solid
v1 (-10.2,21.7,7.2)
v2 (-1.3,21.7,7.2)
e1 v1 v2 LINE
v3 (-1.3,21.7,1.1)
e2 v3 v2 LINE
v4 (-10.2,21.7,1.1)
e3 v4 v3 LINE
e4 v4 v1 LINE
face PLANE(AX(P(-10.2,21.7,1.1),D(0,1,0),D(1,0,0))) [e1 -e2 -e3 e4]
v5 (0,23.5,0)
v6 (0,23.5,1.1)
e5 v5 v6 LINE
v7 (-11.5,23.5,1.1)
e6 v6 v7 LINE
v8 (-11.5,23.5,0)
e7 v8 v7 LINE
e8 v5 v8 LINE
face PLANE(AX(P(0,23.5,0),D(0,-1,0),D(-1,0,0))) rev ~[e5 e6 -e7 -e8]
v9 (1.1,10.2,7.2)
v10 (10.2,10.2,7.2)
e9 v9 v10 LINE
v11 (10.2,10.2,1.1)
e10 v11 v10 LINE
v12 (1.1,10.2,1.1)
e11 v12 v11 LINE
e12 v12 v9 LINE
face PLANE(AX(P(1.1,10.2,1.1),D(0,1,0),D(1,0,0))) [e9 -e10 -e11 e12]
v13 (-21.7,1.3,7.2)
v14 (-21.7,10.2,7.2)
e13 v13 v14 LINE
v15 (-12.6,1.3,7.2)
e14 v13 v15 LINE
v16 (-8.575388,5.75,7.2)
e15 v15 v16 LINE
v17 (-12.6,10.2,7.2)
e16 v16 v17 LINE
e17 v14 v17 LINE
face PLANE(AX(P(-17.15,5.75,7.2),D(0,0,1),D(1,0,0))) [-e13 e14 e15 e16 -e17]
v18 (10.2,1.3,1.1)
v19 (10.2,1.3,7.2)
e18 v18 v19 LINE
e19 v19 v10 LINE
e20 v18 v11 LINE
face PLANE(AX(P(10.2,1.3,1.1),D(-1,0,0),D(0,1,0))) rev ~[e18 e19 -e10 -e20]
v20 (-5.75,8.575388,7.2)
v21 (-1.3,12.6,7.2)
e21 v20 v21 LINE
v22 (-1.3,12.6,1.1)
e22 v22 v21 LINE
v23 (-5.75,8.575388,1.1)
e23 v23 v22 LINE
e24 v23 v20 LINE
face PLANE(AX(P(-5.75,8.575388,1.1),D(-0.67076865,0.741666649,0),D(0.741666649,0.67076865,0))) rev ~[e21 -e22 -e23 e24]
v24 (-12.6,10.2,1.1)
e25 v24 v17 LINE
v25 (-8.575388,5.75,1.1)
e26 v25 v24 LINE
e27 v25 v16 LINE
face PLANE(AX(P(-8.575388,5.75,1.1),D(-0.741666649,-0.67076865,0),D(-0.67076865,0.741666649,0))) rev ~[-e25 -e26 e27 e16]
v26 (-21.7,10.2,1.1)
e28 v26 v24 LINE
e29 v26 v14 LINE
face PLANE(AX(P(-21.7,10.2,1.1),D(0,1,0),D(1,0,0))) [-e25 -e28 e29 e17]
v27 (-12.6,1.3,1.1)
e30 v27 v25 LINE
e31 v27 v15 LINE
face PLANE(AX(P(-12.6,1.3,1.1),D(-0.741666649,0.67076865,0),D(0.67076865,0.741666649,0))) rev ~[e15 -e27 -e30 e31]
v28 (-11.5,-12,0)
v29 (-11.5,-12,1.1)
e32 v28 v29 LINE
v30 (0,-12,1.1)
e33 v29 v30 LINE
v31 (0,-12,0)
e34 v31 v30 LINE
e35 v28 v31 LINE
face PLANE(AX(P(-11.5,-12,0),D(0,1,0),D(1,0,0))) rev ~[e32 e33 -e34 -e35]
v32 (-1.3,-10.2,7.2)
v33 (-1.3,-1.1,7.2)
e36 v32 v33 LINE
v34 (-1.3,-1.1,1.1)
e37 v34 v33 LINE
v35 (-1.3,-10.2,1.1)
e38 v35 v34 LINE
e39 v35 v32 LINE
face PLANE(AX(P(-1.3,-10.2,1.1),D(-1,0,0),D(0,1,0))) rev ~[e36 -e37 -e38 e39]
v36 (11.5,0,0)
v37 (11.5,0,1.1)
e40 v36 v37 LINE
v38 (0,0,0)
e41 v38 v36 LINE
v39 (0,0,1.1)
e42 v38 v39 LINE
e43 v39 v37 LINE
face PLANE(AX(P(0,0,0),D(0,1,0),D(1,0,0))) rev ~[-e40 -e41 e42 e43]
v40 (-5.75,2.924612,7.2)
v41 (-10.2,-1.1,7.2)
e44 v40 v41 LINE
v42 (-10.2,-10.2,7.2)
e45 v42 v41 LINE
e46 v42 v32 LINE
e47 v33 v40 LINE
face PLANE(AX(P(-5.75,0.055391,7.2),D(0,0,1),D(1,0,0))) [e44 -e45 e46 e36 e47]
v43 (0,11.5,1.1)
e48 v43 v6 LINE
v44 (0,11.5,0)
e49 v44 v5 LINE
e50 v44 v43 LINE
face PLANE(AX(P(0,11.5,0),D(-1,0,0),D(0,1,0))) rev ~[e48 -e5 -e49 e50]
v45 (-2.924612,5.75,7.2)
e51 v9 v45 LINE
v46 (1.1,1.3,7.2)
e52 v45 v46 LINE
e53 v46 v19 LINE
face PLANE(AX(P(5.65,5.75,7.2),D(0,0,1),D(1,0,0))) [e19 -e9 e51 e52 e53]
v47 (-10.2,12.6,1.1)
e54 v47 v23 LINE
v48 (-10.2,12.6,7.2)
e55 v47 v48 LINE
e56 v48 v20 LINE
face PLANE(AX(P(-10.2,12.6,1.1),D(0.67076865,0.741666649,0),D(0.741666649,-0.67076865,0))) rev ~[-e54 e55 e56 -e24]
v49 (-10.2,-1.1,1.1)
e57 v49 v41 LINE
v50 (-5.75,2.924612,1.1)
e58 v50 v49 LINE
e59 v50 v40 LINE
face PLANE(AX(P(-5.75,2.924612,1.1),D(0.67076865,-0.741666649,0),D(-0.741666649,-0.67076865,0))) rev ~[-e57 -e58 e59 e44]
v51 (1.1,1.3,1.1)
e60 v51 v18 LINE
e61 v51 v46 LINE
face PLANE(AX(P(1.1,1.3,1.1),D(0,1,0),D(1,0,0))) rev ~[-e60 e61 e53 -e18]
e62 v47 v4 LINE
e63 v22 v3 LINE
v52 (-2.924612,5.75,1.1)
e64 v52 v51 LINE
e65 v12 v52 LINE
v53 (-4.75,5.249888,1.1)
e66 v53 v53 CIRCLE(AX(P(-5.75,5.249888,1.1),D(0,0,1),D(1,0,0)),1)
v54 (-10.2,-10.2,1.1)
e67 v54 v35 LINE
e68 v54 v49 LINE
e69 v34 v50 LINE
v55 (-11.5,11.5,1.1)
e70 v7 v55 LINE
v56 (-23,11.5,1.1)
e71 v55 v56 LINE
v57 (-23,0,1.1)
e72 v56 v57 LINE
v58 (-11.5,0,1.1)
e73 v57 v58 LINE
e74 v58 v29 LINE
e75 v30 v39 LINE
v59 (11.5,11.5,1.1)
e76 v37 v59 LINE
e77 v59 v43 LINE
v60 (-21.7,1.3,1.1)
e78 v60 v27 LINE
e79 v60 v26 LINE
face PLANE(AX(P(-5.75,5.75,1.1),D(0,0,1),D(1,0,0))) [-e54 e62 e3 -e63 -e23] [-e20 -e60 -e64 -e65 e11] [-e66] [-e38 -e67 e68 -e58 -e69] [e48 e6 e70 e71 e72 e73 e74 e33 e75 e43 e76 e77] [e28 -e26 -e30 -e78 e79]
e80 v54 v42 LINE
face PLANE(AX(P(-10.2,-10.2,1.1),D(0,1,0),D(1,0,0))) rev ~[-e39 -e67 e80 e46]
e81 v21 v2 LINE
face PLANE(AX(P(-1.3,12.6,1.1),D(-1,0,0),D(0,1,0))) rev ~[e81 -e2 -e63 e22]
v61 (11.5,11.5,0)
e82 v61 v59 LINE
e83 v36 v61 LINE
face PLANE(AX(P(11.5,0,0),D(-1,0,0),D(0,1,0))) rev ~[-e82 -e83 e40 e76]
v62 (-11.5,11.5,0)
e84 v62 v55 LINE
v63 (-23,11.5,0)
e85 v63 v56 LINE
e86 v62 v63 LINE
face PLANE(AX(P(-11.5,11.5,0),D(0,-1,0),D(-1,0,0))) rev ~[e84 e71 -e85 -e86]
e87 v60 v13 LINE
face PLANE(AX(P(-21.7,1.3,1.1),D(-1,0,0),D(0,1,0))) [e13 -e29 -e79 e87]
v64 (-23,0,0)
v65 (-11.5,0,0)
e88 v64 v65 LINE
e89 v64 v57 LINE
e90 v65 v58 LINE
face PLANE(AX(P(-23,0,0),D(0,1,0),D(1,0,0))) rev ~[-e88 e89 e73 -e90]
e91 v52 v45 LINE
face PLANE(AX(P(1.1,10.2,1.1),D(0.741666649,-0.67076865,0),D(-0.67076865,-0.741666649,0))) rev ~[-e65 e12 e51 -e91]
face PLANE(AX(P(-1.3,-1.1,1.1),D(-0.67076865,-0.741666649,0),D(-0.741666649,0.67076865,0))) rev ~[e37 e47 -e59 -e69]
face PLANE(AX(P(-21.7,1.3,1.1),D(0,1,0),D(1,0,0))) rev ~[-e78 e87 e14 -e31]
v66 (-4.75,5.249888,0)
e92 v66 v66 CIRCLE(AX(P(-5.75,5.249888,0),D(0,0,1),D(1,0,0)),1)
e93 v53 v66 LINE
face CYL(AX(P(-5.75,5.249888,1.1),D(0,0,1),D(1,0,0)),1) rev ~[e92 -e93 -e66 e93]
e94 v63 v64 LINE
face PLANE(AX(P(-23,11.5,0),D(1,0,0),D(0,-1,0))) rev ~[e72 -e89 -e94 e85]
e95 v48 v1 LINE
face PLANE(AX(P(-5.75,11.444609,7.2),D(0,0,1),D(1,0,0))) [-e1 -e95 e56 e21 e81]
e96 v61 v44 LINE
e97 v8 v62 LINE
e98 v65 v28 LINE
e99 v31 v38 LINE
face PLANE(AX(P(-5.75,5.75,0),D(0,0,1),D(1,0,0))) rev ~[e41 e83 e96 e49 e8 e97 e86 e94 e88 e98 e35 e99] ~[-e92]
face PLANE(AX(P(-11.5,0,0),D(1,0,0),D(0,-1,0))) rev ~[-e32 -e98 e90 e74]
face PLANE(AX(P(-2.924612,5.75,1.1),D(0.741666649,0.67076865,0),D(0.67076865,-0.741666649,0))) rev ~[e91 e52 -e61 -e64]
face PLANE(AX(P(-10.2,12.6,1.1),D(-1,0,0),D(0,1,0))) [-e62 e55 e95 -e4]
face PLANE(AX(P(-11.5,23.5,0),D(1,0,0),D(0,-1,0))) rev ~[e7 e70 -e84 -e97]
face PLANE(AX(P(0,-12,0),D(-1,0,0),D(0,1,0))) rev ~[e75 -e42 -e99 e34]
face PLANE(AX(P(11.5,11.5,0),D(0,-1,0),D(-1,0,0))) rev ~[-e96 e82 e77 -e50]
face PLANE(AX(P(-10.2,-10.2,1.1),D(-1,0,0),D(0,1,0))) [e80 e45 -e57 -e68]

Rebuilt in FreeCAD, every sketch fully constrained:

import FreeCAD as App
import Part
import Sketcher
Q = App.Units.Quantity

doc = App.newDocument("Part")
body = doc.addObject("PartDesign::Body", "Body")

sketch1 = body.newObject("Sketcher::SketchObject", "Sketch")
sketch1.AttachmentSupport = (doc.getObject("XY_Plane"), [""])
sketch1.MapMode = "FlatFace"
sketch1.addGeometry([
    Part.LineSegment(App.Vector(-12, 12, 0), App.Vector(-23, 12, 0)),
    Part.LineSegment(App.Vector(-23, 12, 0), App.Vector(-23, 0, 0)),
    Part.LineSegment(App.Vector(-23, 0, 0), App.Vector(-12, 0, 0)),
    Part.LineSegment(App.Vector(-12, 0, 0), App.Vector(-12, -12, 0)),
    Part.LineSegment(App.Vector(-12, -12, 0), App.Vector(0, -12, 0)),
    Part.LineSegment(App.Vector(0, -12, 0), App.Vector(0, 0, 0)),
    Part.LineSegment(App.Vector(0, 0, 0), App.Vector(12, 0, 0)),
    Part.LineSegment(App.Vector(12, 0, 0), App.Vector(12, 12, 0)),
    Part.LineSegment(App.Vector(12, 12, 0), App.Vector(0, 12, 0)),
    Part.LineSegment(App.Vector(0, 12, 0), App.Vector(0, 24, 0)),
    Part.LineSegment(App.Vector(0, 24, 0), App.Vector(-12, 24, 0)),
    Part.LineSegment(App.Vector(-12, 24, 0), App.Vector(-12, 12, 0)),
], False)
sketch1.addConstraint([
    Sketcher.Constraint("Coincident", 0, 2, 1, 1),
    Sketcher.Constraint("Coincident", 1, 2, 2, 1),
    Sketcher.Constraint("Coincident", 2, 2, 3, 1),
    Sketcher.Constraint("Coincident", 3, 2, 4, 1),
    Sketcher.Constraint("Coincident", 4, 2, 5, 1),
    Sketcher.Constraint("Coincident", 5, 2, 6, 1),
    Sketcher.Constraint("Coincident", 6, 2, 7, 1),
    Sketcher.Constraint("Coincident", 7, 2, 8, 1),
    Sketcher.Constraint("Coincident", 8, 2, 9, 1),
    Sketcher.Constraint("Coincident", 9, 2, 10, 1),
    Sketcher.Constraint("Coincident", 10, 2, 11, 1),
    Sketcher.Constraint("Coincident", 11, 2, 0, 1),
    Sketcher.Constraint("Horizontal", 0),
    Sketcher.Constraint("Vertical", 1),
    Sketcher.Constraint("Horizontal", 2),
    Sketcher.Constraint("Vertical", 3),
    Sketcher.Constraint("Horizontal", 4),
    Sketcher.Constraint("Vertical", 5),
    Sketcher.Constraint("Horizontal", 6),
    Sketcher.Constraint("Vertical", 7),
    Sketcher.Constraint("Horizontal", 8),
    Sketcher.Constraint("Vertical", 9),
    Sketcher.Constraint("Horizontal", 10),
    Sketcher.Constraint("Vertical", 11),
    Sketcher.Constraint("Coincident", 5, 2, -1, 1),
    Sketcher.Constraint("Symmetric", 2, 2, 6, 2, -1, 1),
    Sketcher.Constraint("Symmetric", 7, 2, 11, 2, -2),
    Sketcher.Constraint("PointOnObject", 8, 2, -2),
    Sketcher.Constraint("Equal", 2, 4),
    Sketcher.Constraint("Equal", 10, 1),
    Sketcher.Constraint("Equal", 5, 9),
    Sketcher.Constraint("DistanceY", 3, 2, 3, 1, Q("12 mm")),
    Sketcher.Constraint("DistanceX", 0, 2, 0, 1, Q("11.5 mm")),
])
pad1 = body.newObject("PartDesign::Pad", "Pad")
pad1.Profile = sketch1
pad1.Length = 1.1

sketch2 = body.newObject("Sketcher::SketchObject", "Sketch001")
sketch2.AttachmentSupport = (doc.getObject("XY_Plane"), [""])
sketch2.MapMode = "FlatFace"
sketch2.AttachmentOffset = App.Placement(App.Vector(0, 0, 1.1), App.Rotation())
sketch2.addGeometry([
    Part.LineSegment(App.Vector(-22, 10, 0), App.Vector(-22, 1, 0)),
    Part.LineSegment(App.Vector(-22, 1, 0), App.Vector(-13, 1, 0)),
    Part.LineSegment(App.Vector(-13, 1, 0), App.Vector(-9, 6, 0)),
    Part.LineSegment(App.Vector(-9, 6, 0), App.Vector(-13, 10, 0)),
    Part.LineSegment(App.Vector(-13, 10, 0), App.Vector(-22, 10, 0)),
    Part.LineSegment(App.Vector(-6, 3, 0), App.Vector(-10, -1, 0)),
    Part.LineSegment(App.Vector(-10, -1, 0), App.Vector(-10, -10, 0)),
    Part.LineSegment(App.Vector(-10, -10, 0), App.Vector(-1, -10, 0)),
    Part.LineSegment(App.Vector(-1, -10, 0), App.Vector(-1, -1, 0)),
    Part.LineSegment(App.Vector(-1, -1, 0), App.Vector(-6, 3, 0)),
    Part.LineSegment(App.Vector(1, 1, 0), App.Vector(10, 1, 0)),
    Part.LineSegment(App.Vector(10, 1, 0), App.Vector(10, 10, 0)),
    Part.LineSegment(App.Vector(10, 10, 0), App.Vector(1, 10, 0)),
    Part.LineSegment(App.Vector(1, 10, 0), App.Vector(-3, 6, 0)),
    Part.LineSegment(App.Vector(-3, 6, 0), App.Vector(1, 1, 0)),
    Part.LineSegment(App.Vector(-10, 13, 0), App.Vector(-6, 9, 0)),
    Part.LineSegment(App.Vector(-6, 9, 0), App.Vector(-1, 13, 0)),
    Part.LineSegment(App.Vector(-1, 13, 0), App.Vector(-1, 22, 0)),
    Part.LineSegment(App.Vector(-1, 22, 0), App.Vector(-10, 22, 0)),
    Part.LineSegment(App.Vector(-10, 22, 0), App.Vector(-10, 13, 0)),
], False)
sketch2.addConstraint([
    Sketcher.Constraint("Coincident", 0, 2, 1, 1),
    Sketcher.Constraint("Coincident", 1, 2, 2, 1),
    Sketcher.Constraint("Coincident", 2, 2, 3, 1),
    Sketcher.Constraint("Coincident", 3, 2, 4, 1),
    Sketcher.Constraint("Coincident", 4, 2, 0, 1),
    Sketcher.Constraint("Coincident", 5, 2, 6, 1),
    Sketcher.Constraint("Coincident", 6, 2, 7, 1),
    Sketcher.Constraint("Coincident", 7, 2, 8, 1),
    Sketcher.Constraint("Coincident", 8, 2, 9, 1),
    Sketcher.Constraint("Coincident", 9, 2, 5, 1),
    Sketcher.Constraint("Coincident", 10, 2, 11, 1),
    Sketcher.Constraint("Coincident", 11, 2, 12, 1),
    Sketcher.Constraint("Coincident", 12, 2, 13, 1),
    Sketcher.Constraint("Coincident", 13, 2, 14, 1),
    Sketcher.Constraint("Coincident", 14, 2, 10, 1),
    Sketcher.Constraint("Coincident", 15, 2, 16, 1),
    Sketcher.Constraint("Coincident", 16, 2, 17, 1),
    Sketcher.Constraint("Coincident", 17, 2, 18, 1),
    Sketcher.Constraint("Coincident", 18, 2, 19, 1),
    Sketcher.Constraint("Coincident", 19, 2, 15, 1),
    Sketcher.Constraint("Vertical", 0),
    Sketcher.Constraint("Horizontal", 1),
    Sketcher.Constraint("Horizontal", 4),
    Sketcher.Constraint("Vertical", 6),
    Sketcher.Constraint("Horizontal", 7),
    Sketcher.Constraint("Vertical", 8),
    Sketcher.Constraint("Horizontal", 10),
    Sketcher.Constraint("Vertical", 11),
    Sketcher.Constraint("Horizontal", 12),
    Sketcher.Constraint("Vertical", 17),
    Sketcher.Constraint("Horizontal", 18),
    Sketcher.Constraint("Vertical", 19),
    Sketcher.Constraint("Symmetric", 6, 2, 11, 2, -1, 1),
    Sketcher.Constraint("Perpendicular", 3, 5),
    Sketcher.Constraint("Perpendicular", 2, 9),
    Sketcher.Constraint("Perpendicular", 9, 13),
    Sketcher.Constraint("Perpendicular", 5, 14),
    Sketcher.Constraint("Perpendicular", 13, 15),
    Sketcher.Constraint("Perpendicular", 14, 16),
    Sketcher.Constraint("Horizontal", 5, 2, 8, 2),
    Sketcher.Constraint("Horizontal", 1, 2, 10, 2),
    Sketcher.Constraint("Horizontal", 4, 2, 11, 2),
    Sketcher.Constraint("Horizontal", 2, 2, 13, 2),
    Sketcher.Constraint("Horizontal", 16, 2, 19, 2),
    Sketcher.Constraint("Vertical", 1, 2, 3, 2),
    Sketcher.Constraint("Vertical", 12, 2, 14, 2),
    Sketcher.Constraint("Vertical", 9, 2, 15, 2),
    Sketcher.Constraint("Vertical", 8, 2, 16, 2),
    Sketcher.Constraint("Equal", 4, 10),
    Sketcher.Constraint("Equal", 18, 0),
    Sketcher.Constraint("Equal", 12, 6),
    Sketcher.Constraint("Equal", 8, 17),
    Sketcher.Constraint("Distance", 2, Q("6 mm")),
    Sketcher.Constraint("DistanceX", 1, 1, 1, 2, Q("9.1 mm")),
    Sketcher.Constraint("DistanceX", 7, 1, 7, 2, Q("8.9 mm")),
    Sketcher.Constraint("DistanceX", 0, 2, -1, 1, Q("21.7 mm")),
    Sketcher.Constraint("DistanceY", -1, 1, 0, 2, Q("1.3 mm")),
    Sketcher.Constraint("DistanceX", 5, 2, -1, 1, Q("10.2 mm")),
    Sketcher.Constraint("DistanceY", -1, 1, 16, 2, Q("12.6 mm")),
])
pad2 = body.newObject("PartDesign::Pad", "Pad001")
pad2.Profile = sketch2
pad2.Length = 6.1

sketch3 = body.newObject("Sketcher::SketchObject", "Sketch002")
sketch3.AttachmentSupport = (doc.getObject("XY_Plane"), [""])
sketch3.MapMode = "FlatFace"
sketch3.AttachmentOffset = App.Placement(App.Vector(0, 0, 1.1), App.Rotation())
sketch3.addGeometry(Part.Circle(App.Vector(-5.8, 5.2, 0), App.Vector(0, 0, 1), 1), False)
sketch3.addConstraint([
    Sketcher.Constraint("Diameter", 0, Q("2 mm")),
    Sketcher.Constraint("DistanceX", 0, 3, -1, 1, Q("5.75 mm")),
    Sketcher.Constraint("DistanceY", -1, 1, 0, 3, Q("5.249888 mm")),
])
pocket1 = body.newObject("PartDesign::Pocket", "Pocket")
pocket1.Profile = sketch3
pocket1.Type = "ThroughAll"

doc.recompute()
